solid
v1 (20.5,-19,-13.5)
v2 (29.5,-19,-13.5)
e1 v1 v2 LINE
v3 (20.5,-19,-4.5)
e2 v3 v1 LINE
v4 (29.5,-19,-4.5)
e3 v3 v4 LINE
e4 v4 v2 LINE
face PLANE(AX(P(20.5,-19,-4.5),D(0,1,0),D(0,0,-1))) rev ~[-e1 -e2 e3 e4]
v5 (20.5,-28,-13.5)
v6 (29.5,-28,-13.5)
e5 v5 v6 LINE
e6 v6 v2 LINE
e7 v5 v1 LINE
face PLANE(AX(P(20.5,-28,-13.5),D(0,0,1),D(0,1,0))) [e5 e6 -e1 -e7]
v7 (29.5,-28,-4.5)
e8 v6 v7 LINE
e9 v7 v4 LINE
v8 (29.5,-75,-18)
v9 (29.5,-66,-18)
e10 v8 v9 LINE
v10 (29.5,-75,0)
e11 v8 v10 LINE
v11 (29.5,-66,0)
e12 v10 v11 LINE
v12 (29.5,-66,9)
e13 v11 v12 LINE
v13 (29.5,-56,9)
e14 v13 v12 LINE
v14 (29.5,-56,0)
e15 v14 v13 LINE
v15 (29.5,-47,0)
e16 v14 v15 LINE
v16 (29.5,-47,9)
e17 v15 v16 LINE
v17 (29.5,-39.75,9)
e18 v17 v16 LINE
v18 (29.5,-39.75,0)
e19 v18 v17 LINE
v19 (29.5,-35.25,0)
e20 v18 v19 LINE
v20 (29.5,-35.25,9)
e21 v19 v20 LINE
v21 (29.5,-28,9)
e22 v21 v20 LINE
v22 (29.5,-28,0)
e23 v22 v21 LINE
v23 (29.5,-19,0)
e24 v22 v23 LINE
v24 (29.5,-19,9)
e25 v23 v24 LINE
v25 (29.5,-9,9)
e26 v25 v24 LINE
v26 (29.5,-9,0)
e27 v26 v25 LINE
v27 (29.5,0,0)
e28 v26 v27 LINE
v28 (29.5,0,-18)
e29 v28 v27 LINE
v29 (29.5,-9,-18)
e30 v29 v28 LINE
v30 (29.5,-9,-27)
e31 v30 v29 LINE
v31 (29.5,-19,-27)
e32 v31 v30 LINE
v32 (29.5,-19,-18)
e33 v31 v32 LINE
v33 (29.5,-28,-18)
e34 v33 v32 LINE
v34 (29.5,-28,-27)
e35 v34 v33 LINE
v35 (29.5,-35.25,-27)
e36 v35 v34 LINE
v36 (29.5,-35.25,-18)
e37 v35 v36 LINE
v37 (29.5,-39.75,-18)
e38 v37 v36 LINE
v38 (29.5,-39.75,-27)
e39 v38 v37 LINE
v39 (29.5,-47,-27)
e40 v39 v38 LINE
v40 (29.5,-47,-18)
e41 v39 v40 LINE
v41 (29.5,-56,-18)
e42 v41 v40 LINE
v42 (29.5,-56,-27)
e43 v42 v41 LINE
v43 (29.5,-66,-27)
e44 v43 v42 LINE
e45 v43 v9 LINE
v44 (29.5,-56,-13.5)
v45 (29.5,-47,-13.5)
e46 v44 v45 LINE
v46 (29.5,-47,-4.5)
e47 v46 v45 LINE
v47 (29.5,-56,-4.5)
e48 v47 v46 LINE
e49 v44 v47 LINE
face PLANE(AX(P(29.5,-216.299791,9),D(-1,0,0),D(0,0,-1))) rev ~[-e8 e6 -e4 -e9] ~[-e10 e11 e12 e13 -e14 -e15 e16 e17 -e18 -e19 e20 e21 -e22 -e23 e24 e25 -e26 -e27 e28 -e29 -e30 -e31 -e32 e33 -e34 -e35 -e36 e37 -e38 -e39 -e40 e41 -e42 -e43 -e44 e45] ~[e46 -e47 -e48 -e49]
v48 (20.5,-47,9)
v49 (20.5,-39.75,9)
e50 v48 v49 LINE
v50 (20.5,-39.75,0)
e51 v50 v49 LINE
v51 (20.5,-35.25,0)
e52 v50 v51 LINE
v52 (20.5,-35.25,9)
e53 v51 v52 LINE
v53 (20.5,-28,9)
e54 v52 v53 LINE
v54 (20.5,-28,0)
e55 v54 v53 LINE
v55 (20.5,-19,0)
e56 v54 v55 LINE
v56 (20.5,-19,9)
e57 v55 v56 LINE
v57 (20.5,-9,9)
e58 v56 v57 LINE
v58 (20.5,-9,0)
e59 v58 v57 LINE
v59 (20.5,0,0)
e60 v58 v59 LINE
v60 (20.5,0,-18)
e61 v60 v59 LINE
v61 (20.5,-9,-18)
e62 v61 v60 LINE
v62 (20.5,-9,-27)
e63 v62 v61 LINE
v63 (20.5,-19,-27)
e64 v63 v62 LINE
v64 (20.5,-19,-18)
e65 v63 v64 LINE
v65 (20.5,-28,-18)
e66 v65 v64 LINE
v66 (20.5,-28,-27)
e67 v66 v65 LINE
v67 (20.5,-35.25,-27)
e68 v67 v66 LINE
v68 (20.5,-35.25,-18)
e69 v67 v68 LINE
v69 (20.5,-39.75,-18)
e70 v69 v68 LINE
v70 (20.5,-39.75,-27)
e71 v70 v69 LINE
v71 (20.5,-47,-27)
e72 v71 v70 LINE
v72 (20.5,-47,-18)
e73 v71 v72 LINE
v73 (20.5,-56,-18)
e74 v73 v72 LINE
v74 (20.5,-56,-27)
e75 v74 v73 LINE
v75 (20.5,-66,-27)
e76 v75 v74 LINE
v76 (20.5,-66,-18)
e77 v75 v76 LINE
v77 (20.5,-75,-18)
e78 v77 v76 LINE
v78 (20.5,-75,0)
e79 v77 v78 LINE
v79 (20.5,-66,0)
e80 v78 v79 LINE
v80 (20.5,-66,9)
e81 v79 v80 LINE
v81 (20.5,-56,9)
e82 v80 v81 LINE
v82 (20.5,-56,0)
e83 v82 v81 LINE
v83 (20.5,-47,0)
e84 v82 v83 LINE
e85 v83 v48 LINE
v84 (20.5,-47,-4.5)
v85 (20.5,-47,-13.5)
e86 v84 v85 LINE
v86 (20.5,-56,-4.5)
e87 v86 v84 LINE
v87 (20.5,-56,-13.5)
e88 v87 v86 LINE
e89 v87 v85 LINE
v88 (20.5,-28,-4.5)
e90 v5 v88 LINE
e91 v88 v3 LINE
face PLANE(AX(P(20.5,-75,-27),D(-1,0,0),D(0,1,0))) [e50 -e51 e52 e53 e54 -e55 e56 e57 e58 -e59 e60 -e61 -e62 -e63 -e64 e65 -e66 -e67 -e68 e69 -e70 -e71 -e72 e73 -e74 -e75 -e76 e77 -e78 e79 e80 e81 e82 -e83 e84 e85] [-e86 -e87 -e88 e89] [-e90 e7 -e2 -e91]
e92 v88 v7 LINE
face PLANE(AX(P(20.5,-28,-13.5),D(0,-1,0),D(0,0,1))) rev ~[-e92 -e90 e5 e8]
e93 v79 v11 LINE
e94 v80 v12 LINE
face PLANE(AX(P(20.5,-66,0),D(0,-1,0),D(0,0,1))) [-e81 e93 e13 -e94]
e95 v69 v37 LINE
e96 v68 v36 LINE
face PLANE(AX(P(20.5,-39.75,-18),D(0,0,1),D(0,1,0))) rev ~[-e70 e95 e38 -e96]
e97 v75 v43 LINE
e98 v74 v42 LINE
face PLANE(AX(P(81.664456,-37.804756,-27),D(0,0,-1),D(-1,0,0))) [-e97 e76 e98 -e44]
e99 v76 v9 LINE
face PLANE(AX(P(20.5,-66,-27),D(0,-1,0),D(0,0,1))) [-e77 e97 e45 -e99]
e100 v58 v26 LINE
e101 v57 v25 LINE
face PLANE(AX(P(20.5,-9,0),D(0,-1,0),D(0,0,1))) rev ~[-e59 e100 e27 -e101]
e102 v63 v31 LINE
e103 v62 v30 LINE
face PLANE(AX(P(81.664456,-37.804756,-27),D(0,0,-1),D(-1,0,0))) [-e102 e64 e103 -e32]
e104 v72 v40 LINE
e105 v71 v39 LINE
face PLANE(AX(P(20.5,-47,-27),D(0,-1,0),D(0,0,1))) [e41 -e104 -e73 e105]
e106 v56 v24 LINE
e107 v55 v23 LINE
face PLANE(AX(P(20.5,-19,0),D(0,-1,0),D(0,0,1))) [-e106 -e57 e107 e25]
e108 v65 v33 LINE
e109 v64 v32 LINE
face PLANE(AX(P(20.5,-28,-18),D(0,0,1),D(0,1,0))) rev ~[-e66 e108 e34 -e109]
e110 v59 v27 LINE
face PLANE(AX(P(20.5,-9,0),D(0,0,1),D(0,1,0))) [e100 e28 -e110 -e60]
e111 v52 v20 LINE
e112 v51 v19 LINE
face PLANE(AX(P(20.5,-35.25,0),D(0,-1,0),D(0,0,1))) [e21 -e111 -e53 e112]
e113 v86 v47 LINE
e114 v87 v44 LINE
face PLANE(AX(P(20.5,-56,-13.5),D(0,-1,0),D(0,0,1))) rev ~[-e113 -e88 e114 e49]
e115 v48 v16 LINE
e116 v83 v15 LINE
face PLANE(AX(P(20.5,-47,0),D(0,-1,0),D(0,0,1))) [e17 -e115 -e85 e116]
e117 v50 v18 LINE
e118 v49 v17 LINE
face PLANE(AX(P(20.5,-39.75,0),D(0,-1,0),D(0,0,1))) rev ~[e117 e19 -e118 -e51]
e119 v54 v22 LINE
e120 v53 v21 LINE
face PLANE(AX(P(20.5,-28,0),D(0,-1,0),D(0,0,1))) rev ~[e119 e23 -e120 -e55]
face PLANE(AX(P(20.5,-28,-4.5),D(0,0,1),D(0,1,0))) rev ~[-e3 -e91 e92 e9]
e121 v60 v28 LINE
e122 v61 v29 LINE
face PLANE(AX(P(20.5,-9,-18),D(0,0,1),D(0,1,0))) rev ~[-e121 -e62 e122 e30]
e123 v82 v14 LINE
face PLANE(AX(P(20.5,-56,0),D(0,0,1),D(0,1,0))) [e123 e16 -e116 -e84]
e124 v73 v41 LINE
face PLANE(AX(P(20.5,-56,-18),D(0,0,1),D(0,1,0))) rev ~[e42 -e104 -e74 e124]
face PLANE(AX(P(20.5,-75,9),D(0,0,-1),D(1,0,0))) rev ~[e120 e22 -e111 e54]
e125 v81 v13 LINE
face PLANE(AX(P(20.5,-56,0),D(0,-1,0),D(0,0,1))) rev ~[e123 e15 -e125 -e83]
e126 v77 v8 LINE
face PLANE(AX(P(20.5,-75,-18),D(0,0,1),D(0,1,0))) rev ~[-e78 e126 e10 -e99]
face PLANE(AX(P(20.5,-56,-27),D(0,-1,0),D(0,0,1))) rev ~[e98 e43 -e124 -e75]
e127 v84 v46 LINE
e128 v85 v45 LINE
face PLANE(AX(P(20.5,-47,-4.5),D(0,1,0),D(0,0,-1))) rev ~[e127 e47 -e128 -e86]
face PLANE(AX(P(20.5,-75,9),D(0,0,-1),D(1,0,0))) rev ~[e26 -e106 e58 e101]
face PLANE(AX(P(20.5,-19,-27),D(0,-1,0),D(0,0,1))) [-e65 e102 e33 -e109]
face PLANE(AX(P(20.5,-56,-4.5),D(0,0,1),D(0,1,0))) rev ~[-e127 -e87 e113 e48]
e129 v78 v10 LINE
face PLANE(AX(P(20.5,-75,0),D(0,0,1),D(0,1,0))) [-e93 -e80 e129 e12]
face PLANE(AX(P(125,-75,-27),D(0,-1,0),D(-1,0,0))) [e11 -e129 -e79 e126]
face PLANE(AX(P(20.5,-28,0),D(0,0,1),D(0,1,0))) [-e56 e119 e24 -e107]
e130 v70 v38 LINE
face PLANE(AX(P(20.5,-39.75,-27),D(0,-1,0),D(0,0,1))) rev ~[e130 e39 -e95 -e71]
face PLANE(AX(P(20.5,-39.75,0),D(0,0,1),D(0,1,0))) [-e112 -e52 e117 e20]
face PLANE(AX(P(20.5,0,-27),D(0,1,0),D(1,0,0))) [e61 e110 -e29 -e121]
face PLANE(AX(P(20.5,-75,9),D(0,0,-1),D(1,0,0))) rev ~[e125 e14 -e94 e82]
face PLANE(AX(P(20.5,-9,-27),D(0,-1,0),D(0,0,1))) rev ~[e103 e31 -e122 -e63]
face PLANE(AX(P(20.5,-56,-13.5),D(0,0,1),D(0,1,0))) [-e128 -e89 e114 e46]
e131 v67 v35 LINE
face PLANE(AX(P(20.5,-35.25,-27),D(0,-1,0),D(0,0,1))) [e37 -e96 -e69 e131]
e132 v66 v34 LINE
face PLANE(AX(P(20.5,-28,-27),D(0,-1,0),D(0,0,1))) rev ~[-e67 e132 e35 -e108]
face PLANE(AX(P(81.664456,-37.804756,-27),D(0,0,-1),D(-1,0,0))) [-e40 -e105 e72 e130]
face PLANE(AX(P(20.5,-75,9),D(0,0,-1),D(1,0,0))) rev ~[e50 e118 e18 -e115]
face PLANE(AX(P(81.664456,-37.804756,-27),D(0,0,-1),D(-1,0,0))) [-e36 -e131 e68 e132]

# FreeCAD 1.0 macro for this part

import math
import FreeCAD as App
import Part
import Sketcher
from FreeCAD import Vector
Q = App.Units.Quantity


def edges_at(feature, points):
    """Names of the edges that pass closest to the given points."""
    edges = feature.Shape.Edges
    near = lambda p: min(range(len(edges)), key=lambda i: edges[i].distToShape(Part.Vertex(*p))[0])
    return sorted({f"Edge{near(p) + 1}" for p in points})


def add_polygon(sketch, points):
    """Adds a closed chain of lines whose ends are joined by coincident constraints."""
    first, n = sketch.GeometryCount, len(points)
    for a, b in zip(points, points[1:] + points[:1]):
        sketch.addGeometry(Part.LineSegment(App.Vector(*a, 0), App.Vector(*b, 0)), False)
    for i in range(n):
        sketch.addConstraint(Sketcher.Constraint("Coincident", first + i, 2, first + (i + 1) % n, 1))

doc = App.newDocument("Part")
params = doc.addObject("Spreadsheet::Sheet", "Params")
for row, (alias, value) in enumerate([
    ("sketch1_diameter", "16 mm"),
    ("sketch1_diameter2", "8 mm"),
    ("pad1_length", "9 mm"),
    ("sketch2_diameter", "16 mm"),
    ("sketch2_diameter2", "8 mm"),
    ("pad2_length", "9 mm"),
    ("sketch3_diameter", "8 mm"),
    ("sketch3_radius", "100 mm"),
    ("sketch3_radius2", "25 mm"),
    ("sketch3_radius3", "187.5 mm"),
    ("sketch3_width", "300 mm"),
    ("pad3_length", "9 mm"),
    ("fillet_radius", "1 mm"),
    ("sketch4_width", "125 mm"),
    ("sketch4_height", "100 mm"),
    ("sketch5_width", "9 mm"),
    ("sketch5_height", "27 mm"),
    ("pad4_length", "75 mm"),
    ("sketch6_diameter", "8 mm"),
    ("sketch6_radius", "100 mm"),
    ("sketch6_radius2", "25 mm"),
    ("sketch6_radius3", "187.5 mm"),
    ("sketch6_height", "75 mm"),
    ("pad5_length", "9 mm"),
    ("sketch7_radius", "27 mm"),
    ("pad6_length", "4.5 mm"),
    ("pad6_length2", "4.5 mm"),
    ("sketch8_radius", "27 mm"),
    ("pad7_length", "4.5 mm"),
    ("pad7_length2", "4.5 mm"),
    ("sketch9_width", "9 mm"),
    ("sketch9_height", "7 mm"),
    ("sketch10_width", "9 mm"),
    ("sketch10_height", "36 mm"),
    ("sketch11_width", "9 mm"),
    ("sketch11_width2", "14 mm"),
    ("sketch11_width3", "4.5 mm"),
], start=1):
    params.set(f"A{row}", alias)
    params.set(f"B{row}", "=" + value)
    params.setAlias(f"B{row}", alias)

body = doc.addObject("PartDesign::Body", "Body")

sketch1 = doc.addObject("Sketcher::SketchObject", "Sketch")
body.addObject(sketch1)
sketch1.AttachmentSupport = (doc.XY_Plane, [""])
sketch1.MapMode = "FlatFace"
sketch1.addGeometry(Part.Circle(Vector(-125, 0, 0), Vector(0, 0, 1), 8), False)
sketch1.addGeometry(Part.Circle(Vector(-125, 0, 0), Vector(0, 0, 1), 4), False)
sketch1.addConstraint(Sketcher.Constraint("Coincident", 1, 3, 0, 3))
sketch1.addConstraint(Sketcher.Constraint("PointOnObject", 0, 3, -1))
sketch1.addConstraint(Sketcher.Constraint("Diameter", 0, Q("16 mm")))
sketch1.addConstraint(Sketcher.Constraint("Diameter", 1, Q("8 mm")))
sketch1.addConstraint(Sketcher.Constraint("DistanceX", 0, 3, -1, 1, Q("125 mm")))
sketch1.setExpression("Constraints[2]", "Params.sketch1_diameter")
sketch1.setExpression("Constraints[3]", "Params.sketch1_diameter2")
pad1 = doc.addObject("PartDesign::Pad", "Pad")
body.addObject(pad1)
pad1.Profile = sketch1
pad1.setExpression("Length", "Params.pad1_length")
body2 = doc.addObject("PartDesign::Body", "Body001")

sketch2 = doc.addObject("Sketcher::SketchObject", "Sketch001")
body2.addObject(sketch2)
sketch2.AttachmentSupport = (doc.getObject("XY_Plane001"), [""])
sketch2.MapMode = "FlatFace"
sketch2.addGeometry(Part.Circle(Vector(125, 0, 0), Vector(0, 0, 1), 8), False)
sketch2.addGeometry(Part.Circle(Vector(125, 0, 0), Vector(0, 0, 1), 4), False)
sketch2.addConstraint(Sketcher.Constraint("Coincident", 1, 3, 0, 3))
sketch2.addConstraint(Sketcher.Constraint("PointOnObject", 0, 3, -1))
sketch2.addConstraint(Sketcher.Constraint("Diameter", 0, Q("16 mm")))
sketch2.addConstraint(Sketcher.Constraint("Diameter", 1, Q("8 mm")))
sketch2.addConstraint(Sketcher.Constraint("DistanceX", -1, 1, 0, 3, Q("125 mm")))
sketch2.setExpression("Constraints[2]", "Params.sketch2_diameter")
sketch2.setExpression("Constraints[3]", "Params.sketch2_diameter2")
pad2 = doc.addObject("PartDesign::Pad", "Pad001")
body2.addObject(pad2)
pad2.Profile = sketch2
pad2.setExpression("Length", "Params.pad2_length")
body.AllowCompound = True
doc.recompute()

boolean = doc.addObject("PartDesign::Boolean", "Boolean")
body.addObject(boolean)
boolean.Type = "Fuse"
boolean.addObjects([body2])

sketch3 = doc.addObject("Sketcher::SketchObject", "Sketch002")
body.addObject(sketch3)
sketch3.AttachmentSupport = (doc.XY_Plane, [""])
sketch3.MapMode = "FlatFace"
sketch3.addGeometry(Part.LineSegment(Vector(-175, -75, 0), Vector(125, -75, 0)), False)
sketch3.addGeometry(Part.ArcOfCircle(Part.Circle(Vector(225, -75, 0), Vector(0, 0, 1), 100), math.radians(143), math.radians(180)), False)
sketch3.addGeometry(Part.ArcOfCircle(Part.Circle(Vector(125, 0, 0), Vector(0, 0, 1), 25), math.radians(-37), math.radians(118)), False)
sketch3.addGeometry(Part.ArcOfCircle(Part.Circle(Vector(25, 187.5, 0), Vector(0, 0, 1), 187.5), math.radians(-118), math.radians(-62)), False)
sketch3.addGeometry(Part.ArcOfCircle(Part.Circle(Vector(-75, 0, 0), Vector(0, 0, 1), 25), math.radians(62), math.radians(120)), False)
sketch3.addGeometry(Part.ArcOfCircle(Part.Circle(Vector(-100, 43.3, 0), Vector(0, 0, 1), 25), math.radians(-120), math.radians(-60)), False)
sketch3.addGeometry(Part.ArcOfCircle(Part.Circle(Vector(-125, 0, 0), Vector(0, 0, 1), 25), math.radians(60), math.radians(120)), False)
sketch3.addGeometry(Part.ArcOfCircle(Part.Circle(Vector(-150, 43.3, 0), Vector(0, 0, 1), 25), math.radians(-120), math.radians(-60)), False)
sketch3.addGeometry(Part.ArcOfCircle(Part.Circle(Vector(-175, 0, 0), Vector(0, 0, 1), 25), math.radians(60), math.radians(217)), False)
sketch3.addGeometry(Part.ArcOfCircle(Part.Circle(Vector(-275, -75, 0), Vector(0, 0, 1), 100), math.radians(0), math.radians(37)), False)
sketch3.addGeometry(Part.Circle(Vector(-175, 0, 0), Vector(0, 0, 1), 4), False)
sketch3.addGeometry(Part.Circle(Vector(-125, 0, 0), Vector(0, 0, 1), 4), False)
sketch3.addGeometry(Part.Circle(Vector(-75, 0, 0), Vector(0, 0, 1), 4), False)
sketch3.addGeometry(Part.Circle(Vector(125, 0, 0), Vector(0, 0, 1), 4), False)
sketch3.addConstraint(Sketcher.Constraint("Coincident", 0, 2, 1, 2))
sketch3.addConstraint(Sketcher.Constraint("Tangent", 1, 1, 2, 1))
sketch3.addConstraint(Sketcher.Constraint("Tangent", 2, 2, 3, 2))
sketch3.addConstraint(Sketcher.Constraint("Tangent", 3, 1, 4, 1))
sketch3.addConstraint(Sketcher.Constraint("Tangent", 4, 2, 5, 2))
sketch3.addConstraint(Sketcher.Constraint("Tangent", 5, 1, 6, 1))
sketch3.addConstraint(Sketcher.Constraint("Tangent", 6, 2, 7, 2))
sketch3.addConstraint(Sketcher.Constraint("Tangent", 7, 1, 8, 1))
sketch3.addConstraint(Sketcher.Constraint("Tangent", 8, 2, 9, 2))
sketch3.addConstraint(Sketcher.Constraint("Coincident", 9, 1, 0, 1))
sketch3.addConstraint(Sketcher.Constraint("Horizontal", 0))
sketch3.addConstraint(Sketcher.Constraint("Coincident", 10, 3, 8, 3))
sketch3.addConstraint(Sketcher.Constraint("Coincident", 11, 3, 6, 3))
sketch3.addConstraint(Sketcher.Constraint("Coincident", 12, 3, 4, 3))
sketch3.addConstraint(Sketcher.Constraint("Coincident", 13, 3, 2, 3))
sketch3.addConstraint(Sketcher.Constraint("Equal", 2, 4))
sketch3.addConstraint(Sketcher.Constraint("Equal", 4, 5))
sketch3.addConstraint(Sketcher.Constraint("Equal", 5, 6))
sketch3.addConstraint(Sketcher.Constraint("Equal", 6, 7))
sketch3.addConstraint(Sketcher.Constraint("Equal", 7, 8))
sketch3.addConstraint(Sketcher.Constraint("Equal", 1, 9))
sketch3.addConstraint(Sketcher.Constraint("Equal", 10, 11))
sketch3.addConstraint(Sketcher.Constraint("Equal", 11, 12))
sketch3.addConstraint(Sketcher.Constraint("Equal", 12, 13))
sketch3.addConstraint(Sketcher.Constraint("Symmetric", 2, 3, 6, 3, -1, 1))
sketch3.addConstraint(Sketcher.Constraint("PointOnObject", 2, 3, -1))
sketch3.addConstraint(Sketcher.Constraint("PointOnObject", 4, 3, -1))
sketch3.addConstraint(Sketcher.Constraint("PointOnObject", 8, 3, -1))
sketch3.addConstraint(Sketcher.Constraint("Horizontal", 5, 3, 7, 3))
sketch3.addConstraint(Sketcher.Constraint("Horizontal", 1, 3, 9, 3))
sketch3.addConstraint(Sketcher.Constraint("Horizontal", 9, 3, 0, 2))
sketch3.addConstraint(Sketcher.Constraint("Vertical", 13, 3, 0, 2))
sketch3.addConstraint(Sketcher.Constraint("Diameter", 10, Q("8 mm")))
sketch3.addConstraint(Sketcher.Constraint("Radius", 1, Q("100 mm")))
sketch3.addConstraint(Sketcher.Constraint("Radius", 2, Q("25 mm")))
sketch3.addConstraint(Sketcher.Constraint("Radius", 3, Q("187.5 mm")))
sketch3.addConstraint(Sketcher.Constraint("DistanceX", 0, 1, 0, 2, Q("300 mm")))
sketch3.addConstraint(Sketcher.Constraint("DistanceX", -1, 1, 1, 3, Q("225 mm")))
sketch3.setExpression("Constraints[32]", "Params.sketch3_diameter")
sketch3.setExpression("Constraints[33]", "Params.sketch3_radius")
sketch3.setExpression("Constraints[34]", "Params.sketch3_radius2")
sketch3.setExpression("Constraints[35]", "Params.sketch3_radius3")
sketch3.setExpression("Constraints[36]", "Params.sketch3_width")
pad3 = doc.addObject("PartDesign::Pad", "Pad002")
body.addObject(pad3)
pad3.Profile = sketch3
pad3.setExpression("Length", "Params.pad3_length")
doc.recompute()

fillet = doc.addObject("PartDesign::Fillet", "Fillet")
body.addObject(fillet)
fillet.Base = (pad3, edges_at(pad3, [(-175, -75, 4.5), (125, -75, 4.5)]))
fillet.setExpression("Radius", "Params.fillet_radius")

sketch4 = doc.addObject("Sketcher::SketchObject", "Sketch003")
body.addObject(sketch4)
sketch4.AttachmentSupport = (doc.XY_Plane, [""])
sketch4.MapMode = "FlatFace"
add_polygon(sketch4, [(25, -75), (150, -75), (150, 25), (25, 25)])
sketch4.addConstraint(Sketcher.Constraint("Horizontal", 0))
sketch4.addConstraint(Sketcher.Constraint("Vertical", 1))
sketch4.addConstraint(Sketcher.Constraint("Horizontal", 2))
sketch4.addConstraint(Sketcher.Constraint("Vertical", 3))
sketch4.addConstraint(Sketcher.Constraint("DistanceX", 0, 1, 0, 2, Q("125 mm")))
sketch4.addConstraint(Sketcher.Constraint("DistanceY", 1, 1, 1, 2, Q("100 mm")))
sketch4.addConstraint(Sketcher.Constraint("DistanceX", -1, 1, 0, 2, Q("150 mm")))
sketch4.addConstraint(Sketcher.Constraint("DistanceY", 0, 2, -1, 1, Q("75 mm")))
sketch4.setExpression("Constraints[8]", "Params.sketch4_width")
sketch4.setExpression("Constraints[9]", "Params.sketch4_height")
pocket1 = doc.addObject("PartDesign::Pocket", "Pocket")
body.addObject(pocket1)
pocket1.Profile = sketch4
pocket1.Type = "ThroughAll"
pocket1.Reversed = True

sketch5 = doc.addObject("Sketcher::SketchObject", "Sketch004")
body.addObject(sketch5)
sketch5.AttachmentSupport = (doc.XZ_Plane, [""])
sketch5.MapMode = "FlatFace"
sketch5.AttachmentOffset = App.Placement(Vector(0, 0, 75), App.Rotation())
add_polygon(sketch5, [(20, 9), (20, -18), (30, -18), (30, 9)])
sketch5.addConstraint(Sketcher.Constraint("Vertical", 0))
sketch5.addConstraint(Sketcher.Constraint("Horizontal", 1))
sketch5.addConstraint(Sketcher.Constraint("Vertical", 2))
sketch5.addConstraint(Sketcher.Constraint("Horizontal", 3))
sketch5.addConstraint(Sketcher.Constraint("DistanceX", 1, 1, 1, 2, Q("9 mm")))
sketch5.addConstraint(Sketcher.Constraint("DistanceY", 0, 2, 0, 1, Q("27 mm")))
sketch5.addConstraint(Sketcher.Constraint("DistanceY", 0, 2, -1, 1, Q("18 mm")))
sketch5.addConstraint(Sketcher.Constraint("DistanceX", -1, 1, 0, 2, Q("20.5 mm")))
sketch5.setExpression("Constraints[8]", "Params.sketch5_width")
sketch5.setExpression("Constraints[9]", "Params.sketch5_height")
pad4 = doc.addObject("PartDesign::Pad", "Pad003")
body.addObject(pad4)
pad4.Profile = sketch5
pad4.setExpression("Length", "Params.pad4_length")
pad4.Reversed = True

sketch6 = doc.addObject("Sketcher::SketchObject", "Sketch005")
body.addObject(sketch6)
sketch6.AttachmentSupport = (doc.XY_Plane, [""])
sketch6.MapMode = "FlatFace"
sketch6.AttachmentOffset = App.Placement(Vector(0, 0, -27), App.Rotation())
sketch6.addGeometry(Part.ArcOfCircle(Part.Circle(Vector(225, -75, 0), Vector(0, 0, 1), 100), math.radians(143), math.radians(180)), False)
sketch6.addGeometry(Part.LineSegment(Vector(125, -75, 0), Vector(20.5, -75, 0)), False)
sketch6.addGeometry(Part.LineSegment(Vector(20.5, -75, 0), Vector(20.5, 0, 0)), False)
sketch6.addGeometry(Part.LineSegment(Vector(20.5, 0, 0), Vector(25, 0, 0)), False)
sketch6.addGeometry(Part.ArcOfCircle(Part.Circle(Vector(25, 187.5, 0), Vector(0, 0, 1), 187.5), math.radians(-90), math.radians(-62)), False)
sketch6.addGeometry(Part.ArcOfCircle(Part.Circle(Vector(125, 0, 0), Vector(0, 0, 1), 25), math.radians(-37), math.radians(118)), False)
sketch6.addGeometry(Part.Circle(Vector(125, 0, 0), Vector(0, 0, 1), 4), False)
sketch6.addConstraint(Sketcher.Constraint("Coincident", 0, 2, 1, 1))
sketch6.addConstraint(Sketcher.Constraint("Coincident", 1, 2, 2, 1))
sketch6.addConstraint(Sketcher.Constraint("Coincident", 2, 2, 3, 1))
sketch6.addConstraint(Sketcher.Constraint("Tangent", 3, 2, 4, 1))
sketch6.addConstraint(Sketcher.Constraint("Tangent", 4, 2, 5, 2))
sketch6.addConstraint(Sketcher.Constraint("Tangent", 5, 1, 0, 1))
sketch6.addConstraint(Sketcher.Constraint("Horizontal", 1))
sketch6.addConstraint(Sketcher.Constraint("Vertical", 2))
sketch6.addConstraint(Sketcher.Constraint("Horizontal", 3))
sketch6.addConstraint(Sketcher.Constraint("Coincident", 6, 3, 5, 3))
sketch6.addConstraint(Sketcher.Constraint("PointOnObject", 5, 3, -1))
sketch6.addConstraint(Sketcher.Constraint("PointOnObject", 2, 2, -1))
sketch6.addConstraint(Sketcher.Constraint("Vertical", 6, 3, 0, 2))
sketch6.addConstraint(Sketcher.Constraint("Diameter", 6, Q("8 mm")))
sketch6.addConstraint(Sketcher.Constraint("Radius", 0, Q("100 mm")))
sketch6.addConstraint(Sketcher.Constraint("Radius", 5, Q("25 mm")))
sketch6.addConstraint(Sketcher.Constraint("Radius", 4, Q("187.5 mm")))
sketch6.addConstraint(Sketcher.Constraint("DistanceY", 2, 1, 2, 2, Q("75 mm")))
sketch6.addConstraint(Sketcher.Constraint("DistanceX", 1, 2, 1, 1, Q("104.5 mm")))
sketch6.addConstraint(Sketcher.Constraint("DistanceX", -1, 1, 0, 3, Q("225 mm")))
sketch6.setExpression("Constraints[13]", "Params.sketch6_diameter")
sketch6.setExpression("Constraints[14]", "Params.sketch6_radius")
sketch6.setExpression("Constraints[15]", "Params.sketch6_radius2")
sketch6.setExpression("Constraints[16]", "Params.sketch6_radius3")
sketch6.setExpression("Constraints[17]", "Params.sketch6_height")
pad5 = doc.addObject("PartDesign::Pad", "Pad004")
body.addObject(pad5)
pad5.Profile = sketch6
pad5.setExpression("Length", "Params.pad5_length")

sketch7 = doc.addObject("Sketcher::SketchObject", "Sketch006")
body.addObject(sketch7)
sketch7.AttachmentSupport = (doc.XZ_Plane, [""])
sketch7.MapMode = "FlatFace"
sketch7.AttachmentOffset = App.Placement(Vector(0, 0, 25), App.Rotation())
sketch7.addGeometry(Part.LineSegment(Vector(56, -18, 0), Vector(30, -18, 0)), False)
sketch7.addGeometry(Part.LineSegment(Vector(30, -18, 0), Vector(30, 9, 0)), False)
sketch7.addGeometry(Part.ArcOfCircle(Part.Circle(Vector(30, -18, 0), Vector(0, 0, 1), 27), math.radians(0), math.radians(90)), False)
sketch7.addGeometry(Part.LineSegment(Vector(-6, 0, 0), Vector(20, 0, 0)), False)
sketch7.addGeometry(Part.LineSegment(Vector(20, 0, 0), Vector(20, -27, 0)), False)
sketch7.addGeometry(Part.ArcOfCircle(Part.Circle(Vector(20, 0, 0), Vector(0, 0, 1), 27), math.radians(180), math.radians(270)), False)
sketch7.addConstraint(Sketcher.Constraint("Coincident", 0, 2, 1, 1))
sketch7.addConstraint(Sketcher.Constraint("Coincident", 1, 2, 2, 2))
sketch7.addConstraint(Sketcher.Constraint("Coincident", 2, 1, 0, 1))
sketch7.addConstraint(Sketcher.Constraint("Coincident", 3, 2, 4, 1))
sketch7.addConstraint(Sketcher.Constraint("Coincident", 4, 2, 5, 2))
sketch7.addConstraint(Sketcher.Constraint("Coincident", 5, 1, 3, 1))
sketch7.addConstraint(Sketcher.Constraint("Horizontal", 0))
sketch7.addConstraint(Sketcher.Constraint("Vertical", 1))
sketch7.addConstraint(Sketcher.Constraint("Horizontal", 3))
sketch7.addConstraint(Sketcher.Constraint("Vertical", 4))
sketch7.addConstraint(Sketcher.Constraint("Coincident", 0, 2, 2, 3))
sketch7.addConstraint(Sketcher.Constraint("Coincident", 3, 2, 5, 3))
sketch7.addConstraint(Sketcher.Constraint("Equal", 2, 5))
sketch7.addConstraint(Sketcher.Constraint("PointOnObject", 5, 3, -1))
sketch7.addConstraint(Sketcher.Constraint("Radius", 2, Q("27 mm")))
sketch7.addConstraint(Sketcher.Constraint("DistanceY", 2, 3, -1, 1, Q("18 mm")))
sketch7.addConstraint(Sketcher.Constraint("DistanceX", 5, 3, 2, 3, Q("9 mm")))
sketch7.addConstraint(Sketcher.Constraint("DistanceX", -1, 1, 2, 3, Q("29.5 mm")))
sketch7.setExpression("Constraints[14]", "Params.sketch7_radius")
pad6 = doc.addObject("PartDesign::Pad", "Pad005")
body.addObject(pad6)
pad6.Profile = sketch7
pad6.Type = "TwoLengths"
pad6.setExpression("Length", "Params.pad6_length")
pad6.setExpression("Length2", "Params.pad6_length2")
pad6.Reversed = True

sketch8 = doc.addObject("Sketcher::SketchObject", "Sketch007")
body.addObject(sketch8)
sketch8.AttachmentSupport = (doc.XZ_Plane, [""])
sketch8.MapMode = "FlatFace"
sketch8.AttachmentOffset = App.Placement(Vector(0, 0, 50), App.Rotation())
sketch8.addGeometry(Part.LineSegment(Vector(56, -18, 0), Vector(30, -18, 0)), False)
sketch8.addGeometry(Part.LineSegment(Vector(30, -18, 0), Vector(30, 9, 0)), False)
sketch8.addGeometry(Part.ArcOfCircle(Part.Circle(Vector(30, -18, 0), Vector(0, 0, 1), 27), math.radians(0), math.radians(90)), False)
sketch8.addGeometry(Part.LineSegment(Vector(-6, 0, 0), Vector(20, 0, 0)), False)
sketch8.addGeometry(Part.LineSegment(Vector(20, 0, 0), Vector(20, -27, 0)), False)
sketch8.addGeometry(Part.ArcOfCircle(Part.Circle(Vector(20, 0, 0), Vector(0, 0, 1), 27), math.radians(180), math.radians(270)), False)
sketch8.addConstraint(Sketcher.Constraint("Coincident", 0, 2, 1, 1))
sketch8.addConstraint(Sketcher.Constraint("Coincident", 1, 2, 2, 2))
sketch8.addConstraint(Sketcher.Constraint("Coincident", 2, 1, 0, 1))
sketch8.addConstraint(Sketcher.Constraint("Coincident", 3, 2, 4, 1))
sketch8.addConstraint(Sketcher.Constraint("Coincident", 4, 2, 5, 2))
sketch8.addConstraint(Sketcher.Constraint("Coincident", 5, 1, 3, 1))
sketch8.addConstraint(Sketcher.Constraint("Horizontal", 0))
sketch8.addConstraint(Sketcher.Constraint("Vertical", 1))
sketch8.addConstraint(Sketcher.Constraint("Horizontal", 3))
sketch8.addConstraint(Sketcher.Constraint("Vertical", 4))
sketch8.addConstraint(Sketcher.Constraint("Coincident", 0, 2, 2, 3))
sketch8.addConstraint(Sketcher.Constraint("Coincident", 3, 2, 5, 3))
sketch8.addConstraint(Sketcher.Constraint("Equal", 2, 5))
sketch8.addConstraint(Sketcher.Constraint("PointOnObject", 5, 3, -1))
sketch8.addConstraint(Sketcher.Constraint("Radius", 2, Q("27 mm")))
sketch8.addConstraint(Sketcher.Constraint("DistanceY", 2, 3, -1, 1, Q("18 mm")))
sketch8.addConstraint(Sketcher.Constraint("DistanceX", 5, 3, 2, 3, Q("9 mm")))
sketch8.addConstraint(Sketcher.Constraint("DistanceX", -1, 1, 2, 3, Q("29.5 mm")))
sketch8.setExpression("Constraints[14]", "Params.sketch8_radius")
pad7 = doc.addObject("PartDesign::Pad", "Pad006")
body.addObject(pad7)
pad7.Profile = sketch8
pad7.Type = "TwoLengths"
pad7.setExpression("Length", "Params.pad7_length")
pad7.setExpression("Length2", "Params.pad7_length2")
pad7.Reversed = True

sketch9 = doc.addObject("Sketcher::SketchObject", "Sketch008")
body.addObject(sketch9)
sketch9.AttachmentSupport = (doc.XY_Plane, [""])
sketch9.MapMode = "FlatFace"
sketch9.AttachmentOffset = App.Placement(Vector(0, 0, 9), App.Rotation())
add_polygon(sketch9, [(-165, -50), (-165, -57), (-156, -57), (-156, -50)])
add_polygon(sketch9, [(-165, -66), (-165, -75), (-156, -75), (-156, -66)])
add_polygon(sketch9, [(-30, -50), (-30, -57), (-21, -57), (-21, -50)])
add_polygon(sketch9, [(-30, -66), (-30, -75), (-21, -75), (-21, -66)])
add_polygon(sketch9, [(105, -50), (105, -57), (114, -57), (114, -50)])
add_polygon(sketch9, [(105, -66), (105, -75), (114, -75), (114, -66)])
sketch9.addConstraint(Sketcher.Constraint("Vertical", 0))
sketch9.addConstraint(Sketcher.Constraint("Horizontal", 1))
sketch9.addConstraint(Sketcher.Constraint("Vertical", 2))
sketch9.addConstraint(Sketcher.Constraint("Horizontal", 3))
sketch9.addConstraint(Sketcher.Constraint("Vertical", 4))
sketch9.addConstraint(Sketcher.Constraint("Horizontal", 5))
sketch9.addConstraint(Sketcher.Constraint("Vertical", 6))
sketch9.addConstraint(Sketcher.Constraint("Horizontal", 7))
sketch9.addConstraint(Sketcher.Constraint("Vertical", 8))
sketch9.addConstraint(Sketcher.Constraint("Horizontal", 9))
sketch9.addConstraint(Sketcher.Constraint("Vertical", 10))
sketch9.addConstraint(Sketcher.Constraint("Horizontal", 11))
sketch9.addConstraint(Sketcher.Constraint("Vertical", 12))
sketch9.addConstraint(Sketcher.Constraint("Horizontal", 13))
sketch9.addConstraint(Sketcher.Constraint("Vertical", 14))
sketch9.addConstraint(Sketcher.Constraint("Horizontal", 15))
sketch9.addConstraint(Sketcher.Constraint("Vertical", 16))
sketch9.addConstraint(Sketcher.Constraint("Horizontal", 17))
sketch9.addConstraint(Sketcher.Constraint("Vertical", 18))
sketch9.addConstraint(Sketcher.Constraint("Horizontal", 19))
sketch9.addConstraint(Sketcher.Constraint("Vertical", 20))
sketch9.addConstraint(Sketcher.Constraint("Horizontal", 21))
sketch9.addConstraint(Sketcher.Constraint("Vertical", 22))
sketch9.addConstraint(Sketcher.Constraint("Horizontal", 23))
sketch9.addConstraint(Sketcher.Constraint("Horizontal", 1, 2, 8, 2))
sketch9.addConstraint(Sketcher.Constraint("Horizontal", 3, 2, 10, 2))
sketch9.addConstraint(Sketcher.Constraint("Horizontal", 5, 2, 12, 2))
sketch9.addConstraint(Sketcher.Constraint("Horizontal", 7, 2, 14, 2))
sketch9.addConstraint(Sketcher.Constraint("Horizontal", 9, 2, 16, 2))
sketch9.addConstraint(Sketcher.Constraint("Horizontal", 11, 2, 18, 2))
sketch9.addConstraint(Sketcher.Constraint("Horizontal", 13, 2, 20, 2))
sketch9.addConstraint(Sketcher.Constraint("Horizontal", 15, 2, 22, 2))
sketch9.addConstraint(Sketcher.Constraint("Vertical", 3, 2, 4, 2))
sketch9.addConstraint(Sketcher.Constraint("Vertical", 2, 2, 5, 2))
sketch9.addConstraint(Sketcher.Constraint("Vertical", 11, 2, 12, 2))
sketch9.addConstraint(Sketcher.Constraint("Vertical", 10, 2, 13, 2))
sketch9.addConstraint(Sketcher.Constraint("Vertical", 19, 2, 20, 2))
sketch9.addConstraint(Sketcher.Constraint("Vertical", 18, 2, 21, 2))
sketch9.addConstraint(Sketcher.Constraint("Equal", 7, 9))
sketch9.addConstraint(Sketcher.Constraint("Equal", 15, 17))
sketch9.addConstraint(Sketcher.Constraint("Equal", 23, 4))
sketch9.addConstraint(Sketcher.Constraint("DistanceX", 1, 1, 1, 2, Q("9 mm")))
sketch9.addConstraint(Sketcher.Constraint("DistanceY", 0, 2, 0, 1, Q("7 mm")))
sketch9.addConstraint(Sketcher.Constraint("DistanceY", 0, 2, -1, 1, Q("57 mm")))
sketch9.addConstraint(Sketcher.Constraint("DistanceY", 4, 2, -1, 1, Q("75 mm")))
sketch9.addConstraint(Sketcher.Constraint("DistanceX", 8, 2, -1, 1, Q("29.851799 mm")))
sketch9.addConstraint(Sketcher.Constraint("DistanceX", 0, 2, -1, 1, Q("164.708548 mm")))
sketch9.addConstraint(Sketcher.Constraint("DistanceX", -1, 1, 16, 2, Q("105.004951 mm")))
sketch9.setExpression("Constraints[65]", "Params.sketch9_width")
sketch9.setExpression("Constraints[66]", "Params.sketch9_height")
pocket2 = doc.addObject("PartDesign::Pocket", "Pocket001")
body.addObject(pocket2)
pocket2.Profile = sketch9
pocket2.Type = "ThroughAll"

sketch10 = doc.addObject("Sketcher::SketchObject", "Sketch009")
body.addObject(sketch10)
sketch10.AttachmentSupport = (doc.XZ_Plane, [""])
sketch10.MapMode = "FlatFace"
add_polygon(sketch10, [(-217, -37), (-217, 30), (166, 30), (166, -37)])
add_polygon(sketch10, [(30, 9), (20, 9), (20, -27), (30, -27)])
sketch10.addConstraint(Sketcher.Constraint("Vertical", 0))
sketch10.addConstraint(Sketcher.Constraint("Horizontal", 1))
sketch10.addConstraint(Sketcher.Constraint("Vertical", 2))
sketch10.addConstraint(Sketcher.Constraint("Horizontal", 3))
sketch10.addConstraint(Sketcher.Constraint("Horizontal", 4))
sketch10.addConstraint(Sketcher.Constraint("Vertical", 5))
sketch10.addConstraint(Sketcher.Constraint("Horizontal", 6))
sketch10.addConstraint(Sketcher.Constraint("Vertical", 7))
sketch10.addConstraint(Sketcher.Constraint("DistanceX", 4, 2, 4, 1, Q("9 mm")))
sketch10.addConstraint(Sketcher.Constraint("DistanceY", 5, 2, 5, 1, Q("36 mm")))
sketch10.addConstraint(Sketcher.Constraint("DistanceY", -1, 1, 4, 2, Q("9 mm")))
sketch10.addConstraint(Sketcher.Constraint("DistanceX", -1, 1, 4, 2, Q("20.5 mm")))
sketch10.addConstraint(Sketcher.Constraint("DistanceY", 0, 1, 0, 2, Q("66.55971 mm")))
sketch10.addConstraint(Sketcher.Constraint("DistanceX", 1, 1, 1, 2, Q("383.266904 mm")))
sketch10.addConstraint(Sketcher.Constraint("DistanceX", 0, 2, -1, 1, Q("217.436147 mm")))
sketch10.addConstraint(Sketcher.Constraint("DistanceY", -1, 1, 0, 2, Q("29.765546 mm")))
sketch10.setExpression("Constraints[16]", "Params.sketch10_width")
sketch10.setExpression("Constraints[17]", "Params.sketch10_height")
pocket3 = doc.addObject("PartDesign::Pocket", "Pocket002")
body.addObject(pocket3)
pocket3.Profile = sketch10
pocket3.Type = "ThroughAll"
pocket3.Midplane = True

sketch11 = doc.addObject("Sketcher::SketchObject", "Sketch010")
body.addObject(sketch11)
sketch11.AttachmentSupport = (doc.YZ_Plane, [""])
sketch11.MapMode = "FlatFace"
sketch11.AttachmentOffset = App.Placement(Vector(0, 0, 20.5), App.Rotation())
add_polygon(sketch11, [(-19, -27), (-28, -27), (-28, -18), (-19, -18)])
add_polygon(sketch11, [(-47, -27), (-56, -27), (-56, -18), (-47, -18)])
add_polygon(sketch11, [(-47, 0), (-56, 0), (-56, 9), (-47, 9)])
add_polygon(sketch11, [(-19, 0), (-28, 0), (-28, 9), (-19, 9)])
add_polygon(sketch11, [(-28, -4.5), (-19, -4.5), (-19, -13.5), (-28, -13.5)])
add_polygon(sketch11, [(-47, -13.5), (-56, -13.5), (-56, -4.5), (-47, -4.5)])
add_polygon(sketch11, [(-9, -27), (-9, -18), (5, -18), (5, -27)])
add_polygon(sketch11, [(0.1, 0), (-9, 0), (-9, 9), (0.1, 9)])
add_polygon(sketch11, [(-66, 0), (-75, 0), (-75, 9), (-66, 9)])
add_polygon(sketch11, [(-66, -27), (-75, -27), (-75, -18), (-66, -18)])
add_polygon(sketch11, [(-35.2, -27), (-39.8, -27), (-39.8, -18), (-35.2, -18)])
add_polygon(sketch11, [(-35.2, 0), (-39.8, 0), (-39.8, 9), (-35.2, 9)])
sketch11.addConstraint(Sketcher.Constraint("Horizontal", 0))
sketch11.addConstraint(Sketcher.Constraint("Vertical", 1))
sketch11.addConstraint(Sketcher.Constraint("Horizontal", 2))
sketch11.addConstraint(Sketcher.Constraint("Vertical", 3))
sketch11.addConstraint(Sketcher.Constraint("Horizontal", 4))
sketch11.addConstraint(Sketcher.Constraint("Vertical", 5))
sketch11.addConstraint(Sketcher.Constraint("Horizontal", 6))
sketch11.addConstraint(Sketcher.Constraint("Vertical", 7))
sketch11.addConstraint(Sketcher.Constraint("Horizontal", 8))
sketch11.addConstraint(Sketcher.Constraint("Vertical", 9))
sketch11.addConstraint(Sketcher.Constraint("Horizontal", 10))
sketch11.addConstraint(Sketcher.Constraint("Vertical", 11))
sketch11.addConstraint(Sketcher.Constraint("Horizontal", 12))
sketch11.addConstraint(Sketcher.Constraint("Vertical", 13))
sketch11.addConstraint(Sketcher.Constraint("Horizontal", 14))
sketch11.addConstraint(Sketcher.Constraint("Vertical", 15))
sketch11.addConstraint(Sketcher.Constraint("Horizontal", 16))
sketch11.addConstraint(Sketcher.Constraint("Vertical", 17))
sketch11.addConstraint(Sketcher.Constraint("Horizontal", 18))
sketch11.addConstraint(Sketcher.Constraint("Vertical", 19))
sketch11.addConstraint(Sketcher.Constraint("Horizontal", 20))
sketch11.addConstraint(Sketcher.Constraint("Vertical", 21))
sketch11.addConstraint(Sketcher.Constraint("Horizontal", 22))
sketch11.addConstraint(Sketcher.Constraint("Vertical", 23))
sketch11.addConstraint(Sketcher.Constraint("Vertical", 24))
sketch11.addConstraint(Sketcher.Constraint("Horizontal", 25))
sketch11.addConstraint(Sketcher.Constraint("Vertical", 26))
sketch11.addConstraint(Sketcher.Constraint("Horizontal", 27))
sketch11.addConstraint(Sketcher.Constraint("Horizontal", 28))
sketch11.addConstraint(Sketcher.Constraint("Vertical", 29))
sketch11.addConstraint(Sketcher.Constraint("Horizontal", 30))
sketch11.addConstraint(Sketcher.Constraint("Vertical", 31))
sketch11.addConstraint(Sketcher.Constraint("Horizontal", 32))
sketch11.addConstraint(Sketcher.Constraint("Vertical", 33))
sketch11.addConstraint(Sketcher.Constraint("Horizontal", 34))
sketch11.addConstraint(Sketcher.Constraint("Vertical", 35))
sketch11.addConstraint(Sketcher.Constraint("Horizontal", 36))
sketch11.addConstraint(Sketcher.Constraint("Vertical", 37))
sketch11.addConstraint(Sketcher.Constraint("Horizontal", 38))
sketch11.addConstraint(Sketcher.Constraint("Vertical", 39))
sketch11.addConstraint(Sketcher.Constraint("Horizontal", 40))
sketch11.addConstraint(Sketcher.Constraint("Vertical", 41))
sketch11.addConstraint(Sketcher.Constraint("Horizontal", 42))
sketch11.addConstraint(Sketcher.Constraint("Vertical", 43))
sketch11.addConstraint(Sketcher.Constraint("Horizontal", 44))
sketch11.addConstraint(Sketcher.Constraint("Vertical", 45))
sketch11.addConstraint(Sketcher.Constraint("Horizontal", 46))
sketch11.addConstraint(Sketcher.Constraint("Vertical", 47))
sketch11.addConstraint(Sketcher.Constraint("PointOnObject", 8, 2, -1))
sketch11.addConstraint(Sketcher.Constraint("PointOnObject", 12, 2, -1))
sketch11.addConstraint(Sketcher.Constraint("PointOnObject", 28, 2, -1))
sketch11.addConstraint(Sketcher.Constraint("PointOnObject", 32, 2, -1))
sketch11.addConstraint(Sketcher.Constraint("PointOnObject", 44, 2, -1))
sketch11.addConstraint(Sketcher.Constraint("Horizontal", 3, 2, 4, 2))
sketch11.addConstraint(Sketcher.Constraint("Horizontal", 2, 2, 5, 2))
sketch11.addConstraint(Sketcher.Constraint("Horizontal", 10, 2, 13, 2))
sketch11.addConstraint(Sketcher.Constraint("Horizontal", 18, 2, 20, 2))
sketch11.addConstraint(Sketcher.Constraint("Horizontal", 19, 2, 21, 2))
sketch11.addConstraint(Sketcher.Constraint("Horizontal", 6, 2, 24, 2))
sketch11.addConstraint(Sketcher.Constraint("Horizontal", 7, 2, 26, 2))
sketch11.addConstraint(Sketcher.Constraint("Horizontal", 14, 2, 29, 2))
sketch11.addConstraint(Sketcher.Constraint("Horizontal", 30, 2, 33, 2))
sketch11.addConstraint(Sketcher.Constraint("Horizontal", 27, 2, 36, 2))
sketch11.addConstraint(Sketcher.Constraint("Horizontal", 25, 2, 37, 2))
sketch11.addConstraint(Sketcher.Constraint("Horizontal", 39, 2, 40, 2))
sketch11.addConstraint(Sketcher.Constraint("Horizontal", 38, 2, 41, 2))
sketch11.addConstraint(Sketcher.Constraint("Horizontal", 34, 2, 45, 2))
sketch11.addConstraint(Sketcher.Constraint("Vertical", 5, 2, 8, 2))
sketch11.addConstraint(Sketcher.Constraint("Vertical", 7, 2, 10, 2))
sketch11.addConstraint(Sketcher.Constraint("Vertical", 1, 2, 12, 2))
sketch11.addConstraint(Sketcher.Constraint("Vertical", 3, 2, 14, 2))
sketch11.addConstraint(Sketcher.Constraint("Vertical", 15, 2, 16, 2))
sketch11.addConstraint(Sketcher.Constraint("Vertical", 13, 2, 18, 2))
sketch11.addConstraint(Sketcher.Constraint("Vertical", 9, 2, 20, 2))
sketch11.addConstraint(Sketcher.Constraint("Vertical", 11, 2, 22, 2))
sketch11.addConstraint(Sketcher.Constraint("Vertical", 27, 2, 28, 2))
sketch11.addConstraint(Sketcher.Constraint("Vertical", 33, 2, 36, 2))
sketch11.addConstraint(Sketcher.Constraint("Vertical", 35, 2, 38, 2))
sketch11.addConstraint(Sketcher.Constraint("Vertical", 41, 2, 44, 2))
sketch11.addConstraint(Sketcher.Constraint("Vertical", 43, 2, 46, 2))
sketch11.addConstraint(Sketcher.Constraint("Equal", 2, 4))
sketch11.addConstraint(Sketcher.Constraint("Equal", 22, 32))
sketch11.addConstraint(Sketcher.Constraint("Equal", 38, 1))
sketch11.addConstraint(Sketcher.Constraint("Equal", 7, 9))
sketch11.addConstraint(Sketcher.Constraint("Equal", 15, 17))
sketch11.addConstraint(Sketcher.Constraint("DistanceX", 0, 2, 0, 1, Q("9 mm")))
sketch11.addConstraint(Sketcher.Constraint("DistanceX", 25, 1, 25, 2, Q("14 mm")))
sketch11.addConstraint(Sketcher.Constraint("DistanceX", 40, 2, 40, 1, Q("4.5 mm")))
sketch11.addConstraint(Sketcher.Constraint("DistanceX", 0, 2, -1, 1, Q("28 mm")))
sketch11.addConstraint(Sketcher.Constraint("DistanceY", 0, 2, -1, 1, Q("27 mm")))
sketch11.addConstraint(Sketcher.Constraint("DistanceX", 4, 2, -1, 1, Q("56 mm")))
sketch11.addConstraint(Sketcher.Constraint("DistanceX", 24, 2, -1, 1, Q("9 mm")))
sketch11.addConstraint(Sketcher.Constraint("DistanceX", 32, 2, -1, 1, Q("75 mm")))
sketch11.addConstraint(Sketcher.Constraint("DistanceY", 16, 2, -1, 1, Q("4.5 mm")))
sketch11.addConstraint(Sketcher.Constraint("DistanceX", 40, 2, -1, 1, Q("39.75 mm")))
sketch11.addConstraint(Sketcher.Constraint("DistanceX", 28, 2, 28, 1, Q("9.054008 mm")))
sketch11.setExpression("Constraints[133]", "Params.sketch11_width")
sketch11.setExpression("Constraints[134]", "Params.sketch11_width2")
sketch11.setExpression("Constraints[135]", "Params.sketch11_width3")
pocket4 = doc.addObject("PartDesign::Pocket", "Pocket003")
body.addObject(pocket4)
pocket4.Profile = sketch11
pocket4.Type = "ThroughAll"
pocket4.Reversed = True

doc.recompute()
